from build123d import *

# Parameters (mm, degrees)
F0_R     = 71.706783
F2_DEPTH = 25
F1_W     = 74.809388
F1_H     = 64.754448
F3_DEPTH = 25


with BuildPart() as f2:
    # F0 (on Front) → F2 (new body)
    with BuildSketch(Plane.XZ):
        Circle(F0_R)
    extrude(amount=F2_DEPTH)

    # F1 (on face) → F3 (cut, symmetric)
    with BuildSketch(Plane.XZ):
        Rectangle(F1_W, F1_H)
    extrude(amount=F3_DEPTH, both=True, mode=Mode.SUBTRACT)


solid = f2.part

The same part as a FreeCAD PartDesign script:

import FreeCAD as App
import Part
import Sketcher


def add_polygon(sketch, points):
    """Adds a closed chain of lines whose ends are joined by coincident constraints."""
    first, n = sketch.GeometryCount, len(points)
    for a, b in zip(points, points[1:] + points[:1]):
        sketch.addGeometry(Part.LineSegment(App.Vector(*a, 0), App.Vector(*b, 0)), False)
    for i in range(n):
        sketch.addConstraint(Sketcher.Constraint("Coincident", first + i, 2, first + (i + 1) % n, 1))

doc = App.newDocument("Part")
body = doc.addObject("PartDesign::Body", "Body")

# Sketch on XZ plane
sketch1 = body.newObject("Sketcher::SketchObject", "Sketch")
sketch1.AttachmentSupport = (doc.getObject("XZ_Plane"), [""])
sketch1.MapMode = "FlatFace"
sketch1.addGeometry(Part.Circle(App.Vector(0, 0, 0), App.Vector(0, 0, 1), 72), False)
sketch1.addConstraint([
    Sketcher.Constraint("Coincident", 0, 3, -1, 1),
    Sketcher.Constraint("Diameter", 0, 143.413566),
])
pad1 = body.newObject("PartDesign::Pad", "Pad")
pad1.Profile = sketch1
pad1.Length = 25

# Sketch on XZ plane
sketch2 = body.newObject("Sketcher::SketchObject", "Sketch001")
sketch2.AttachmentSupport = (doc.getObject("XZ_Plane"), [""])
sketch2.MapMode = "FlatFace"
add_polygon(sketch2, [(-37, 32), (-37, -32), (37, -32), (37, 32)])  # lines 0-3
sketch2.addConstraint([
    Sketcher.Constraint("Vertical", 0),
    Sketcher.Constraint("Horizontal", 1),
    Sketcher.Constraint("Vertical", 2),
    Sketcher.Constraint("Horizontal", 3),
    Sketcher.Constraint("Symmetric", 0, 2, 2, 2, -1, 1),
    Sketcher.Constraint("DistanceX", 1, 1, 1, 2, 74.809388),
    Sketcher.Constraint("DistanceY", 0, 2, 0, 1, 64.754448),
])
pocket1 = body.newObject("PartDesign::Pocket", "Pocket")
pocket1.Profile = sketch2
pocket1.Length = 50
pocket1.Midplane = True

doc.recompute()
